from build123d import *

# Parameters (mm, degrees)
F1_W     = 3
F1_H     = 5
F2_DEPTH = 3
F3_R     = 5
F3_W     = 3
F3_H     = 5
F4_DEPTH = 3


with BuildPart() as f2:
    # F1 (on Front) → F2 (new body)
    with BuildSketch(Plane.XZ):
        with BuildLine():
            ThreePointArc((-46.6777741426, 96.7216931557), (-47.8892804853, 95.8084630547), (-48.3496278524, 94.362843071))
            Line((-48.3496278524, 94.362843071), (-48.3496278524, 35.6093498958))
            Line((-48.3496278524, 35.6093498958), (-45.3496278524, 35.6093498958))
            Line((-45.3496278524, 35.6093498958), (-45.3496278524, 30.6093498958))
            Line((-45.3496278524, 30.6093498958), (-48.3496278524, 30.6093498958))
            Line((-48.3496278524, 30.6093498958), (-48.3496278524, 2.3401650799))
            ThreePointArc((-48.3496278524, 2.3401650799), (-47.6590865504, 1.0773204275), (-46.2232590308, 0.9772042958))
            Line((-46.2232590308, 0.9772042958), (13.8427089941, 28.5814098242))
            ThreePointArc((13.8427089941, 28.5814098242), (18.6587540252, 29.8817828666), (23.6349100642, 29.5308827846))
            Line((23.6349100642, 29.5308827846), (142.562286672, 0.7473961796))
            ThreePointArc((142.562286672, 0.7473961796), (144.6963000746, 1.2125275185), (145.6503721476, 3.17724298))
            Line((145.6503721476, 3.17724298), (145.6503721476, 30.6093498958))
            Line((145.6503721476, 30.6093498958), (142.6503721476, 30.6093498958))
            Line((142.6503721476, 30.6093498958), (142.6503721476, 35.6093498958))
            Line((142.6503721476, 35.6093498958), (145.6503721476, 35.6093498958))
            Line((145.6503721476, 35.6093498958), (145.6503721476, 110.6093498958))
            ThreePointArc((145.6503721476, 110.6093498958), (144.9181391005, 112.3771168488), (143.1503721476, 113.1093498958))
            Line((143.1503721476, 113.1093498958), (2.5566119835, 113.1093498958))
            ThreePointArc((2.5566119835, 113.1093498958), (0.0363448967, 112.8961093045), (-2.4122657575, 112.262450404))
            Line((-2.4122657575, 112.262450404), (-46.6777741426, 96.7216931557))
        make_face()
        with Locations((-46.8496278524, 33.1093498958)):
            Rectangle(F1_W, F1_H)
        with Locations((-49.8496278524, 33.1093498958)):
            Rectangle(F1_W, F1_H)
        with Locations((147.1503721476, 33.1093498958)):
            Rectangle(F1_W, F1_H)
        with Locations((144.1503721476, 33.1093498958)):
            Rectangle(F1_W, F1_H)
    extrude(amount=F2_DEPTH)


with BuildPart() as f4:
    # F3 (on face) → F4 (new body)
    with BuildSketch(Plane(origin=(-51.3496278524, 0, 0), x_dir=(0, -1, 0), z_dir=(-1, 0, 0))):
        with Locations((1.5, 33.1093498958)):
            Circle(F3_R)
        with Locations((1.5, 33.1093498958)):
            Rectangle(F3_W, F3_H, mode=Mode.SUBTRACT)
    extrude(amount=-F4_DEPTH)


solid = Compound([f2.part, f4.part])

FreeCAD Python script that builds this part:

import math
import FreeCAD as App
import Part
import Sketcher
from FreeCAD import Vector


def add_polygon(sketch, points):
    """Adds a closed chain of lines whose ends are joined by coincident constraints."""
    first, n = sketch.GeometryCount, len(points)
    for a, b in zip(points, points[1:] + points[:1]):
        sketch.addGeometry(Part.LineSegment(App.Vector(*a, 0), App.Vector(*b, 0)), False)
    for i in range(n):
        sketch.addConstraint(Sketcher.Constraint("Coincident", first + i, 2, first + (i + 1) % n, 1))

doc = App.newDocument("Part")
body = doc.addObject("PartDesign::Body", "Body")

# Sketch on XZ plane
sketch1 = doc.addObject("Sketcher::SketchObject", "Sketch")
body.addObject(sketch1)
sketch1.AttachmentSupport = (doc.XZ_Plane, [""])
sketch1.MapMode = "FlatFace"
sketch1.addGeometry([
    Part.ArcOfCircle(Part.Circle(Vector(-45.8, 94.4, 0), Vector(0, 0, 1), 2.5), math.radians(109), math.radians(180)),  # 0
    Part.LineSegment(Vector(-48.3, 94.4, 0), Vector(-48.3, 35.6, 0)),  # 1
    Part.LineSegment(Vector(-48.3, 35.6, 0), Vector(-51.3, 35.6, 0)),  # 2
    Part.LineSegment(Vector(-51.3, 35.6, 0), Vector(-51.3, 30.6, 0)),  # 3
    Part.LineSegment(Vector(-51.3, 30.6, 0), Vector(-48.3, 30.6, 0)),  # 4
    Part.LineSegment(Vector(-48.3, 30.6, 0), Vector(-48.3, 2.3, 0)),  # 5
    Part.ArcOfCircle(Part.Circle(Vector(-46.8, 2.3, 0), Vector(0, 0, 1), 1.5), math.radians(180), math.radians(295)),  # 6
    Part.LineSegment(Vector(-46.2, 1, 0), Vector(13.8, 28.6, 0)),  # 7
    Part.ArcOfCircle(Part.Circle(Vector(20.1, 15, 0), Vector(0, 0, 1), 15), math.radians(76), math.radians(115)),  # 8
    Part.LineSegment(Vector(23.6, 29.5, 0), Vector(142.6, 0.7, 0)),  # 9
    Part.ArcOfCircle(Part.Circle(Vector(143.2, 3.2, 0), Vector(0, 0, 1), 2.5), math.radians(-104), math.radians(0)),  # 10
    Part.LineSegment(Vector(145.7, 3.2, 0), Vector(145.7, 30.6, 0)),  # 11
    Part.LineSegment(Vector(145.7, 30.6, 0), Vector(148.7, 30.6, 0)),  # 12
    Part.LineSegment(Vector(148.7, 30.6, 0), Vector(148.7, 35.6, 0)),  # 13
    Part.LineSegment(Vector(148.7, 35.6, 0), Vector(145.7, 35.6, 0)),  # 14
    Part.LineSegment(Vector(145.7, 35.6, 0), Vector(145.7, 110.6, 0)),  # 15
    Part.ArcOfCircle(Part.Circle(Vector(143.2, 110.6, 0), Vector(0, 0, 1), 2.5), math.radians(0), math.radians(90)),  # 16
    Part.LineSegment(Vector(143.2, 113.1, 0), Vector(2.6, 113.1, 0)),  # 17
    Part.ArcOfCircle(Part.Circle(Vector(2.6, 98.1, 0), Vector(0, 0, 1), 15), math.radians(90), math.radians(109.35)),  # 18
    Part.LineSegment(Vector(-2.4, 112.3, 0), Vector(-46.7, 96.7, 0)),  # 19
], False)
sketch1.addConstraint([
    Sketcher.Constraint("Tangent", 0, 2, 1, 1),
    Sketcher.Constraint("Coincident", 1, 2, 2, 1),
    Sketcher.Constraint("Coincident", 2, 2, 3, 1),
    Sketcher.Constraint("Coincident", 3, 2, 4, 1),
    Sketcher.Constraint("Coincident", 4, 2, 5, 1),
    Sketcher.Constraint("Tangent", 5, 2, 6, 1),
    Sketcher.Constraint("Tangent", 6, 2, 7, 1),
    Sketcher.Constraint("Tangent", 7, 2, 8, 2),
    Sketcher.Constraint("Tangent", 8, 1, 9, 1),
    Sketcher.Constraint("Tangent", 9, 2, 10, 1),
    Sketcher.Constraint("Tangent", 10, 2, 11, 1),
    Sketcher.Constraint("Coincident", 11, 2, 12, 1),
    Sketcher.Constraint("Coincident", 12, 2, 13, 1),
    Sketcher.Constraint("Coincident", 13, 2, 14, 1),
    Sketcher.Constraint("Coincident", 14, 2, 15, 1),
    Sketcher.Constraint("Tangent", 15, 2, 16, 1),
    Sketcher.Constraint("Tangent", 16, 2, 17, 1),
    Sketcher.Constraint("Tangent", 17, 2, 18, 1),
    Sketcher.Constraint("Tangent", 18, 2, 19, 1),
    Sketcher.Constraint("Tangent", 19, 2, 0, 1),
    Sketcher.Constraint("Vertical", 1),
    Sketcher.Constraint("Horizontal", 2),
    Sketcher.Constraint("Vertical", 3),
    Sketcher.Constraint("Horizontal", 4),
    Sketcher.Constraint("Vertical", 5),
    Sketcher.Constraint("Vertical", 11),
    Sketcher.Constraint("Horizontal", 12),
    Sketcher.Constraint("Vertical", 13),
    Sketcher.Constraint("Horizontal", 14),
    Sketcher.Constraint("Vertical", 15),
    Sketcher.Constraint("Horizontal", 17),
    Sketcher.Constraint("Equal", 0, 10),
    Sketcher.Constraint("Equal", 10, 16),
    Sketcher.Constraint("Equal", 8, 18),
    Sketcher.Constraint("Horizontal", 4, 2, 11, 2),
    Sketcher.Constraint("Horizontal", 2, 2, 13, 2),
    Sketcher.Constraint("Vertical", 10, 3, 16, 3),
    Sketcher.Constraint("Vertical", 1, 2, 4, 2),
    Sketcher.Constraint("Equal", 4, 12),
    Sketcher.Constraint("Radius", 8, 15.0),
    Sketcher.Constraint("Radius", 0, 2.5),
    Sketcher.Constraint("Radius", 6, 1.5),
    Sketcher.Constraint("DistanceX", 2, 2, 2, 1, 3.0),
    Sketcher.Constraint("DistanceY", 3, 2, 3, 1, 5.0),
    Sketcher.Constraint("DistanceY", 15, 1, 15, 2, 75.0),
    Sketcher.Constraint("DistanceX", 6, 3, 10, 3, 190.0),
    Sketcher.Constraint("DistanceX", 17, 2, 17, 1, 140.59376),
    Sketcher.Constraint("DistanceY", -1, 1, 8, 3, 14.951802),
    Sketcher.Constraint("DistanceY", 10, 3, 0, 3, 91.1856),
    Sketcher.Constraint("DistanceX", 7, 2, 8, 1, 9.792201),
    Sketcher.Constraint("DistanceX", 18, 3, 8, 1, 21.078298),
    Sketcher.Constraint("DistanceY", 18, 2, 17, 2, 0.846899),
    Sketcher.Constraint("DistanceY", 5, 2, 5, 1, 28.269185),
    Sketcher.Constraint("DistanceX", -1, 1, 18, 3, 2.556612),
])
pad1 = doc.addObject("PartDesign::Pad", "Pad")
body.addObject(pad1)
pad1.Profile = sketch1
pad1.Length = 3
body2 = doc.addObject("PartDesign::Body", "Body001")

# Sketch on YZ plane
sketch2 = doc.addObject("Sketcher::SketchObject", "Sketch001")
body2.addObject(sketch2)
sketch2.AttachmentSupport = (doc.getObject("YZ_Plane001"), [""])
sketch2.MapMode = "FlatFace"
sketch2.AttachmentOffset = App.Placement(Vector(0, 0, -51.349628), App.Rotation())
sketch2.addGeometry(Part.Circle(Vector(-1.5, 33.1, 0), Vector(0, 0, 1), 5), False)  # 0
add_polygon(sketch2, [(-3, 30.6), (0, 30.6), (0, 35.6), (-3, 35.6)])  # lines 1-4
sketch2.addConstraint([
    Sketcher.Constraint("Horizontal", 1),
    Sketcher.Constraint("Vertical", 2),
    Sketcher.Constraint("Horizontal", 3),
    Sketcher.Constraint("Vertical", 4),
    Sketcher.Constraint("PointOnObject", 1, 2, -2),
    Sketcher.Constraint("Diameter", 0, 10.0),
    Sketcher.Constraint("DistanceX", 1, 1, 1, 2, 3.0),
    Sketcher.Constraint("DistanceY", 2, 1, 2, 2, 5.0),
    Sketcher.Constraint("DistanceX", 0, 3, -1, 1, 1.5),
    Sketcher.Constraint("DistanceY", 1, 2, 0, 3, 2.5),
    Sketcher.Constraint("DistanceY", -1, 1, 0, 3, 33.10935),
])
pad2 = doc.addObject("PartDesign::Pad", "Pad001")
body2.addObject(pad2)
pad2.Profile = sketch2
pad2.Length = 3

doc.recompute()
